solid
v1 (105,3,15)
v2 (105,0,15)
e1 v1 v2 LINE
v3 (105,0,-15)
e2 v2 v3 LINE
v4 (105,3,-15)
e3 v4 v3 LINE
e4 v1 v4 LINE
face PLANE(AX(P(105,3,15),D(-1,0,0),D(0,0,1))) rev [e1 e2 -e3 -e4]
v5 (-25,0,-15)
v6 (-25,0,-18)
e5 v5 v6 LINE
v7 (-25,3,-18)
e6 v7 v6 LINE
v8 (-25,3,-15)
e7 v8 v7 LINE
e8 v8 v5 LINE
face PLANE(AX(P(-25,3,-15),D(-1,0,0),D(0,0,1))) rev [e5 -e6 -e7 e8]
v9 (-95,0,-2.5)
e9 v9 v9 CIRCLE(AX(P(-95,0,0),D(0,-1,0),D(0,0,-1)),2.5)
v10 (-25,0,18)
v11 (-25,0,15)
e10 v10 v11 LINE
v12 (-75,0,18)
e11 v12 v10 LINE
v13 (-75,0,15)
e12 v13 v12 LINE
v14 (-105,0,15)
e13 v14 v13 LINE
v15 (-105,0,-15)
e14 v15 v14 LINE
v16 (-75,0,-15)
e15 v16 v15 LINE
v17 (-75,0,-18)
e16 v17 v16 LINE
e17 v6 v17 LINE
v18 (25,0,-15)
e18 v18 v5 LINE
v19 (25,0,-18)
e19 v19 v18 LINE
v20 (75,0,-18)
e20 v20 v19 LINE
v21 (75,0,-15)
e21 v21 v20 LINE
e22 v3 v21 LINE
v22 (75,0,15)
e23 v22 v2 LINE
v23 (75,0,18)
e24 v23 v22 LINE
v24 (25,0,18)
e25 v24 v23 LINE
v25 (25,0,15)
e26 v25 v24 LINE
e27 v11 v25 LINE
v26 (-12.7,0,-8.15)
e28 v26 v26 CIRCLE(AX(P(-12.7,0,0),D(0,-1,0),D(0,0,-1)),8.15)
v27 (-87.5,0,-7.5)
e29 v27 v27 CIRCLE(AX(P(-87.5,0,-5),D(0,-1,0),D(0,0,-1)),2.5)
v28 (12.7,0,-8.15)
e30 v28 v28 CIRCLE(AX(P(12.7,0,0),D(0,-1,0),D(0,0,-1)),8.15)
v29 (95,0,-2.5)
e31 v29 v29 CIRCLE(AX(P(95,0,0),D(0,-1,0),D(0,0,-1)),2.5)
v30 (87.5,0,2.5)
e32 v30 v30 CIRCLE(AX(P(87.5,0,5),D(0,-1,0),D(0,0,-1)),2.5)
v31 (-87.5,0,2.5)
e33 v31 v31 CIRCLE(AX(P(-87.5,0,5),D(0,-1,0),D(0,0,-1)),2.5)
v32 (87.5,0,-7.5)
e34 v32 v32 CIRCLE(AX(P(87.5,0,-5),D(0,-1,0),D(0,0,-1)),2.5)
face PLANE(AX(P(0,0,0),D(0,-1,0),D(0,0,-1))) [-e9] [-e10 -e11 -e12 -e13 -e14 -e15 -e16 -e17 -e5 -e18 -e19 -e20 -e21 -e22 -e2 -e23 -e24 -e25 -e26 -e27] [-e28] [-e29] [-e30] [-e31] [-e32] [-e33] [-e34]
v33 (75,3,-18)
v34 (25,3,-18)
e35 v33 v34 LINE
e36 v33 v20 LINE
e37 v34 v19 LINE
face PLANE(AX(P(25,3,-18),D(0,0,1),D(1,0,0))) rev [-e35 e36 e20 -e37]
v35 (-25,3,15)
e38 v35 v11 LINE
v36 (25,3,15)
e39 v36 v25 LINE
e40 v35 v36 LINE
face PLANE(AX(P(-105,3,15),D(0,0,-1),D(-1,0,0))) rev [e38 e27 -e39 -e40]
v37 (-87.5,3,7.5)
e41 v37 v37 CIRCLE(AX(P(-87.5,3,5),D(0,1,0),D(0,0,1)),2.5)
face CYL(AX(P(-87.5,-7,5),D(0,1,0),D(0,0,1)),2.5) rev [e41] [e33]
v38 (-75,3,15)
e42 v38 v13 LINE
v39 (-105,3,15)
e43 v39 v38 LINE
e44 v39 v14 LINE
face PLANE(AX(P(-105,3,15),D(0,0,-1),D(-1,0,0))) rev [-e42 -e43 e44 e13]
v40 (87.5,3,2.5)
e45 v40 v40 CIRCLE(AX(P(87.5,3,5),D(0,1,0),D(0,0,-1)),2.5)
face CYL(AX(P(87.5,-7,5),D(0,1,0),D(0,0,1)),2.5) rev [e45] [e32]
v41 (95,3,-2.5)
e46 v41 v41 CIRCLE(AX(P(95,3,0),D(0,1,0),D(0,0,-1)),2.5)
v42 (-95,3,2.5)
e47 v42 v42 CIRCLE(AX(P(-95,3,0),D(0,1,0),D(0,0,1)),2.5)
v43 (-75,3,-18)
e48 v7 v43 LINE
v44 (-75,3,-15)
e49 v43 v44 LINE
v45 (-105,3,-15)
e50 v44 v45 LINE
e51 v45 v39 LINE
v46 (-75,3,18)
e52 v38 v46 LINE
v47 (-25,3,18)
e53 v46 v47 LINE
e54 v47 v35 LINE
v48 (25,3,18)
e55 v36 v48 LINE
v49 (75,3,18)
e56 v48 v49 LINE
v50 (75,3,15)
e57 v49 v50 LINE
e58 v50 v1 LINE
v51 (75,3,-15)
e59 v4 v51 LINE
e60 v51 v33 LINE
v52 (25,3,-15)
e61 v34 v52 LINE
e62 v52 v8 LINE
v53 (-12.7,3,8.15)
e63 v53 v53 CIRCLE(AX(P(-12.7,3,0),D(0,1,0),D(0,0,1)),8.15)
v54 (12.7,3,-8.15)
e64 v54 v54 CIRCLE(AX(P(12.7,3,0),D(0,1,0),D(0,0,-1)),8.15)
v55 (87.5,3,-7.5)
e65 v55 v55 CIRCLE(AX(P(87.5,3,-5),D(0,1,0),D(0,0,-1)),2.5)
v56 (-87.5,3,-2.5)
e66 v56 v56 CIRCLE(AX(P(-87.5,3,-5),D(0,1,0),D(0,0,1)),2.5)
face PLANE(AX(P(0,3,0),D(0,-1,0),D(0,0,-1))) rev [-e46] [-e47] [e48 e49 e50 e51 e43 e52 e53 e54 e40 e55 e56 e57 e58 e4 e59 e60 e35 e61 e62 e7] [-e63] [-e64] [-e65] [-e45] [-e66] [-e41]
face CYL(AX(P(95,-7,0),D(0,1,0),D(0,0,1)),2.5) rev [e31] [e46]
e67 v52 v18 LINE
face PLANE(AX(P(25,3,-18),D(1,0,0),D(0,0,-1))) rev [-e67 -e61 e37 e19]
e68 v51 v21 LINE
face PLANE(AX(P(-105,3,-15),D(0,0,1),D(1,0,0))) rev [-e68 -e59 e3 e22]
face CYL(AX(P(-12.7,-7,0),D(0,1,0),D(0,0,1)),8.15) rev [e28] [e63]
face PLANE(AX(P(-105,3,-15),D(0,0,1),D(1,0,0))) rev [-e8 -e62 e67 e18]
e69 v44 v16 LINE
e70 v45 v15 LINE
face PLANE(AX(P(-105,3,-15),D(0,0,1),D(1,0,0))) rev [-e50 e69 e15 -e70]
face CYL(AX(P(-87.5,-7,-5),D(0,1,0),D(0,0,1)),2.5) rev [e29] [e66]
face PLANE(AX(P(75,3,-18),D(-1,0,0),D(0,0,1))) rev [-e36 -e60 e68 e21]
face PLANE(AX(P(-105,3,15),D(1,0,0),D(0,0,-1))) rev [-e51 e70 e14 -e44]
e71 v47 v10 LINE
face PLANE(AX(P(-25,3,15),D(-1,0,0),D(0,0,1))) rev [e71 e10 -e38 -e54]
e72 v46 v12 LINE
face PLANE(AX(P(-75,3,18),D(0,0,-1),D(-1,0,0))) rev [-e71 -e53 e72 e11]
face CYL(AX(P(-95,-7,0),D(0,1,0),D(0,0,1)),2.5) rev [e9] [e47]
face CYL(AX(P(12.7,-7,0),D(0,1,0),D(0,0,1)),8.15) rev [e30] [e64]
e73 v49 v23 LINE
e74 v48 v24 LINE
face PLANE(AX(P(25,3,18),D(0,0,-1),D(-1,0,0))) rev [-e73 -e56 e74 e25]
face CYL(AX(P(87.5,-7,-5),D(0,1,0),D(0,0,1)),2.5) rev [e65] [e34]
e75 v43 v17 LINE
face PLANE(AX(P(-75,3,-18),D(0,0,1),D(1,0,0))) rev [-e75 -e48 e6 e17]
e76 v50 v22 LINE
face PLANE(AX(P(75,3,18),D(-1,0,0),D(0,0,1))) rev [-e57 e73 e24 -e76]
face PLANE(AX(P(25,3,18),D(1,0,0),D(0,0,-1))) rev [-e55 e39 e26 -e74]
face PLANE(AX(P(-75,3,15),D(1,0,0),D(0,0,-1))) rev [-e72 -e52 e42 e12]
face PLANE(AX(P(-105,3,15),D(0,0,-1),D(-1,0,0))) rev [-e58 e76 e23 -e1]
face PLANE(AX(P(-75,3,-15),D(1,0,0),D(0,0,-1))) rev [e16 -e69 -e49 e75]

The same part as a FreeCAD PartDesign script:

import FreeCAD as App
import Part
import Sketcher


def add_polygon(sketch, points):
    """Adds a closed chain of lines whose ends are joined by coincident constraints."""
    first, n = sketch.GeometryCount, len(points)
    for a, b in zip(points, points[1:] + points[:1]):
        sketch.addGeometry(Part.LineSegment(App.Vector(*a, 0), App.Vector(*b, 0)), False)
    for i in range(n):
        sketch.addConstraint(Sketcher.Constraint("Coincident", first + i, 2, first + (i + 1) % n, 1))

doc = App.newDocument("Part")
body = doc.addObject("PartDesign::Body", "Body")

# Sketch on XZ plane
sketch1 = doc.addObject("Sketcher::SketchObject", "Sketch")
body.addObject(sketch1)
sketch1.AttachmentSupport = (doc.XZ_Plane, [""])
sketch1.MapMode = "FlatFace"
add_polygon(sketch1, [(-105, -15), (-105, 15), (105, 15), (105, -15)])  # lines 0-3
sketch1.addConstraint([
    Sketcher.Constraint("Vertical", 0),
    Sketcher.Constraint("Horizontal", 1),
    Sketcher.Constraint("Vertical", 2),
    Sketcher.Constraint("Horizontal", 3),
    Sketcher.Constraint("Symmetric", 0, 2, 2, 2, -1, 1),
    Sketcher.Constraint("DistanceX", 1, 1, 1, 2, 210.0),
    Sketcher.Constraint("DistanceY", 0, 1, 0, 2, 30.0),
])
pad1 = doc.addObject("PartDesign::Pad", "Pad")
body.addObject(pad1)
pad1.Profile = sketch1
pad1.Length = 3
pad1.Reversed = True

# Sketch on XZ plane
sketch2 = doc.addObject("Sketcher::SketchObject", "Sketch001")
body.addObject(sketch2)
sketch2.AttachmentSupport = (doc.XZ_Plane, [""])
sketch2.MapMode = "FlatFace"
add_polygon(sketch2, [(-75, -18), (-75, -15), (-25, -15), (-25, -18)])  # lines 0-3
add_polygon(sketch2, [(25, -18), (25, -15), (75, -15), (75, -18)])  # lines 4-7
add_polygon(sketch2, [(25, 15), (25, 18), (75, 18), (75, 15)])  # lines 8-11
add_polygon(sketch2, [(-75, 15), (-75, 18), (-25, 18), (-25, 15)])  # lines 12-15
sketch2.addConstraint([
    Sketcher.Constraint("Vertical", 0),
    Sketcher.Constraint("Horizontal", 1),
    Sketcher.Constraint("Vertical", 2),
    Sketcher.Constraint("Horizontal", 3),
    Sketcher.Constraint("Vertical", 4),
    Sketcher.Constraint("Horizontal", 5),
    Sketcher.Constraint("Vertical", 6),
    Sketcher.Constraint("Horizontal", 7),
    Sketcher.Constraint("Vertical", 8),
    Sketcher.Constraint("Horizontal", 9),
    Sketcher.Constraint("Vertical", 10),
    Sketcher.Constraint("Horizontal", 11),
    Sketcher.Constraint("Vertical", 12),
    Sketcher.Constraint("Horizontal", 13),
    Sketcher.Constraint("Vertical", 14),
    Sketcher.Constraint("Horizontal", 15),
    Sketcher.Constraint("Symmetric", 2, 2, 8, 2, -1, 1),
    Sketcher.Constraint("Symmetric", 0, 2, 10, 2, -1, 1),
    Sketcher.Constraint("Symmetric", 6, 2, 12, 2, -1, 1),
    Sketcher.Constraint("Symmetric", 4, 2, 14, 2, -1, 1),
    Sketcher.Constraint("Symmetric", 1, 2, 4, 2, -2),
    Sketcher.Constraint("Symmetric", 3, 2, 6, 2, -2),
    Sketcher.Constraint("DistanceX", 1, 1, 1, 2, 50.0),
    Sketcher.Constraint("DistanceY", 0, 1, 0, 2, 3.0),
    Sketcher.Constraint("DistanceX", 0, 2, -1, 1, 75.0),
    Sketcher.Constraint("DistanceY", 0, 2, -1, 1, 15.0),
])
pad2 = doc.addObject("PartDesign::Pad", "Pad001")
body.addObject(pad2)
pad2.Profile = sketch2
pad2.Length = 3
pad2.Reversed = True

# Sketch on XZ plane
sketch3 = doc.addObject("Sketcher::SketchObject", "Sketch002")
body.addObject(sketch3)
sketch3.AttachmentSupport = (doc.XZ_Plane, [""])
sketch3.MapMode = "FlatFace"
sketch3.AttachmentOffset = App.Placement(App.Vector(0, 0, -3), App.Rotation())
sketch3.addGeometry([
    Part.Circle(App.Vector(-12.7, 0, 0), App.Vector(0, 0, 1), 8.15),
    Part.Circle(App.Vector(12.7, 0, 0), App.Vector(0, 0, 1), 8.15),
], False)
sketch3.addConstraint([
    Sketcher.Constraint("Equal", 0, 1),
    Sketcher.Constraint("Symmetric", 0, 3, 1, 3, -1, 1),
    Sketcher.Constraint("PointOnObject", 0, 3, -1),
    Sketcher.Constraint("Diameter", 0, 16.3),
    Sketcher.Constraint("DistanceX", 0, 3, -1, 1, 12.7),
])
pocket1 = doc.addObject("PartDesign::Pocket", "Pocket")
body.addObject(pocket1)
pocket1.Profile = sketch3
pocket1.Length = 10
pocket1.Reversed = True

# Sketch on XZ plane
sketch4 = doc.addObject("Sketcher::SketchObject", "Sketch003")
body.addObject(sketch4)
sketch4.AttachmentSupport = (doc.XZ_Plane, [""])
sketch4.MapMode = "FlatFace"
sketch4.AttachmentOffset = App.Placement(App.Vector(0, 0, -3), App.Rotation())
sketch4.addGeometry([
    Part.Circle(App.Vector(-95, 0, 0), App.Vector(0, 0, 1), 2.5),  # 0
    Part.Circle(App.Vector(-87.5, -5, 0), App.Vector(0, 0, 1), 2.5),  # 1
    Part.Circle(App.Vector(-87.5, 5, 0), App.Vector(0, 0, 1), 2.5),  # 2
    Part.Circle(App.Vector(87.5, 5, 0), App.Vector(0, 0, 1), 2.5),  # 3
    Part.Circle(App.Vector(87.5, -5, 0), App.Vector(0, 0, 1), 2.5),  # 4
    Part.Circle(App.Vector(95, 0, 0), App.Vector(0, 0, 1), 2.5),  # 5
], False)
sketch4.addConstraint([
    Sketcher.Constraint("Equal", 0, 1),
    Sketcher.Constraint("Equal", 1, 2),
    Sketcher.Constraint("Equal", 2, 3),
    Sketcher.Constraint("Equal", 3, 4),
    Sketcher.Constraint("Equal", 4, 5),
    Sketcher.Constraint("Symmetric", 1, 3, 3, 3, -1, 1),
    Sketcher.Constraint("Symmetric", 2, 3, 4, 3, -1, 1),
    Sketcher.Constraint("Symmetric", 0, 3, 5, 3, -1, 1),
    Sketcher.Constraint("Symmetric", 2, 3, 3, 3, -2),
    Sketcher.Constraint("PointOnObject", 0, 3, -1),
    Sketcher.Constraint("Diameter", 0, 5.0),
    Sketcher.Constraint("DistanceX", 0, 3, -1, 1, 95.0),
    Sketcher.Constraint("DistanceY", 1, 3, -1, 1, 5.0),
    Sketcher.Constraint("DistanceX", 2, 3, 3, 3, 175.0),
])
pocket2 = doc.addObject("PartDesign::Pocket", "Pocket001")
body.addObject(pocket2)
pocket2.Profile = sketch4
pocket2.Length = 10
pocket2.Reversed = True

doc.recompute()
